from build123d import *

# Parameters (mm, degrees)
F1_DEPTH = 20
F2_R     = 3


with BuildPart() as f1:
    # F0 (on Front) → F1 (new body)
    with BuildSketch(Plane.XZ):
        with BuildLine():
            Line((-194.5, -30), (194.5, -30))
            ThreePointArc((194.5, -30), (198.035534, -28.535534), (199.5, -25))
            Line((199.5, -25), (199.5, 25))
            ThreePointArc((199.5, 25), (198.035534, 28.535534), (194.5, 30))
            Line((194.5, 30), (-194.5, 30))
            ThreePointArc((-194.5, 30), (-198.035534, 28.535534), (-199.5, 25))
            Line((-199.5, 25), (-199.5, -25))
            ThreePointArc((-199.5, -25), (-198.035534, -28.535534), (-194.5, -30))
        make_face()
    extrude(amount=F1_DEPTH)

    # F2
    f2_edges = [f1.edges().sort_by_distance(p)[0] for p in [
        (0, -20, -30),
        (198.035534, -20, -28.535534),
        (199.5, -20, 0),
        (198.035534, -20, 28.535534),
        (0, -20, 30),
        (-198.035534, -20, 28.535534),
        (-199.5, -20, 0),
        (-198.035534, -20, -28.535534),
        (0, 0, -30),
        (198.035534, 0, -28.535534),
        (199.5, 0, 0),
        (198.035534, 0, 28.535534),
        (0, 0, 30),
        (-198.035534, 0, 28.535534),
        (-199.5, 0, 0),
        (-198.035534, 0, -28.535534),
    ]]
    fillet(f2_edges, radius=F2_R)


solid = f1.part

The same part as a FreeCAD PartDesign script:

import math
import FreeCAD as App
import Part
import Sketcher

V = App.Vector


def edges_at(feature, points):
    """Names of the edges that pass closest to the given points."""
    edges = feature.Shape.Edges
    near = lambda p: min(range(len(edges)), key=lambda i: edges[i].distToShape(Part.Vertex(*p))[0])
    return sorted({f"Edge{near(p) + 1}" for p in points})

doc = App.newDocument("Part")
body = doc.addObject("PartDesign::Body", "Body")

# Sketch on XZ plane
sketch1 = doc.addObject("Sketcher::SketchObject", "Sketch")
body.addObject(sketch1)
sketch1.AttachmentSupport = (doc.XZ_Plane, [""])
sketch1.MapMode = "FlatFace"
sketch1.addGeometry([
    Part.LineSegment(V(-194.5, -30, 0), V(194.5, -30, 0)),  # 0
    Part.ArcOfCircle(Part.Circle(V(194.5, -25, 0), V(0, 0, 1), 5), math.radians(-90), math.radians(0)),  # 1
    Part.LineSegment(V(199.5, -25, 0), V(199.5, 25, 0)),  # 2
    Part.ArcOfCircle(Part.Circle(V(194.5, 25, 0), V(0, 0, 1), 5), math.radians(0), math.radians(90)),  # 3
    Part.LineSegment(V(194.5, 30, 0), V(-194.5, 30, 0)),  # 4
    Part.ArcOfCircle(Part.Circle(V(-194.5, 25, 0), V(0, 0, 1), 5), math.radians(90), math.radians(180)),  # 5
    Part.LineSegment(V(-199.5, 25, 0), V(-199.5, -25, 0)),  # 6
    Part.ArcOfCircle(Part.Circle(V(-194.5, -25, 0), V(0, 0, 1), 5), math.radians(180), math.radians(270)),  # 7
], False)
sketch1.addConstraint([
    Sketcher.Constraint("Tangent", 0, 2, 1, 1),
    Sketcher.Constraint("Tangent", 1, 2, 2, 1),
    Sketcher.Constraint("Tangent", 2, 2, 3, 1),
    Sketcher.Constraint("Tangent", 3, 2, 4, 1),
    Sketcher.Constraint("Tangent", 4, 2, 5, 1),
    Sketcher.Constraint("Tangent", 5, 2, 6, 1),
    Sketcher.Constraint("Tangent", 6, 2, 7, 1),
    Sketcher.Constraint("Tangent", 7, 2, 0, 1),
    Sketcher.Constraint("Horizontal", 0),
    Sketcher.Constraint("Vertical", 2),
    Sketcher.Constraint("Horizontal", 4),
    Sketcher.Constraint("Vertical", 6),
    Sketcher.Constraint("Equal", 1, 3),
    Sketcher.Constraint("Equal", 3, 5),
    Sketcher.Constraint("Equal", 5, 7),
    Sketcher.Constraint("Symmetric", 1, 3, 5, 3, -1, 1),
    Sketcher.Constraint("Radius", 1, 5.0),
    Sketcher.Constraint("DistanceX", 0, 1, 0, 2, 389.0),
    Sketcher.Constraint("DistanceY", 2, 1, 2, 2, 50.0),
])
pad1 = doc.addObject("PartDesign::Pad", "Pad")
body.addObject(pad1)
pad1.Profile = sketch1
pad1.Length = 20
doc.recompute()

fillet = doc.addObject("PartDesign::Fillet", "Fillet")
body.addObject(fillet)
fillet.Base = (pad1, edges_at(pad1, [
    (0, -20, -30),
    (198.036, -20, -28.536),
    (199.5, -20, 0),
    (198.036, -20, 28.536),
    (0, -20, 30),
    (-198.036, -20, 28.536),
    (-199.5, -20, 0),
    (-198.036, -20, -28.536),
    (0, 0, -30),
    (198.036, 0, -28.536),
    (199.5, 0, 0),
    (198.036, 0, 28.536),
    (0, 0, 30),
    (-198.036, 0, 28.536),
    (-199.5, 0, 0),
    (-198.036, 0, -28.536),
]))
fillet.Radius = 3

doc.recompute()
